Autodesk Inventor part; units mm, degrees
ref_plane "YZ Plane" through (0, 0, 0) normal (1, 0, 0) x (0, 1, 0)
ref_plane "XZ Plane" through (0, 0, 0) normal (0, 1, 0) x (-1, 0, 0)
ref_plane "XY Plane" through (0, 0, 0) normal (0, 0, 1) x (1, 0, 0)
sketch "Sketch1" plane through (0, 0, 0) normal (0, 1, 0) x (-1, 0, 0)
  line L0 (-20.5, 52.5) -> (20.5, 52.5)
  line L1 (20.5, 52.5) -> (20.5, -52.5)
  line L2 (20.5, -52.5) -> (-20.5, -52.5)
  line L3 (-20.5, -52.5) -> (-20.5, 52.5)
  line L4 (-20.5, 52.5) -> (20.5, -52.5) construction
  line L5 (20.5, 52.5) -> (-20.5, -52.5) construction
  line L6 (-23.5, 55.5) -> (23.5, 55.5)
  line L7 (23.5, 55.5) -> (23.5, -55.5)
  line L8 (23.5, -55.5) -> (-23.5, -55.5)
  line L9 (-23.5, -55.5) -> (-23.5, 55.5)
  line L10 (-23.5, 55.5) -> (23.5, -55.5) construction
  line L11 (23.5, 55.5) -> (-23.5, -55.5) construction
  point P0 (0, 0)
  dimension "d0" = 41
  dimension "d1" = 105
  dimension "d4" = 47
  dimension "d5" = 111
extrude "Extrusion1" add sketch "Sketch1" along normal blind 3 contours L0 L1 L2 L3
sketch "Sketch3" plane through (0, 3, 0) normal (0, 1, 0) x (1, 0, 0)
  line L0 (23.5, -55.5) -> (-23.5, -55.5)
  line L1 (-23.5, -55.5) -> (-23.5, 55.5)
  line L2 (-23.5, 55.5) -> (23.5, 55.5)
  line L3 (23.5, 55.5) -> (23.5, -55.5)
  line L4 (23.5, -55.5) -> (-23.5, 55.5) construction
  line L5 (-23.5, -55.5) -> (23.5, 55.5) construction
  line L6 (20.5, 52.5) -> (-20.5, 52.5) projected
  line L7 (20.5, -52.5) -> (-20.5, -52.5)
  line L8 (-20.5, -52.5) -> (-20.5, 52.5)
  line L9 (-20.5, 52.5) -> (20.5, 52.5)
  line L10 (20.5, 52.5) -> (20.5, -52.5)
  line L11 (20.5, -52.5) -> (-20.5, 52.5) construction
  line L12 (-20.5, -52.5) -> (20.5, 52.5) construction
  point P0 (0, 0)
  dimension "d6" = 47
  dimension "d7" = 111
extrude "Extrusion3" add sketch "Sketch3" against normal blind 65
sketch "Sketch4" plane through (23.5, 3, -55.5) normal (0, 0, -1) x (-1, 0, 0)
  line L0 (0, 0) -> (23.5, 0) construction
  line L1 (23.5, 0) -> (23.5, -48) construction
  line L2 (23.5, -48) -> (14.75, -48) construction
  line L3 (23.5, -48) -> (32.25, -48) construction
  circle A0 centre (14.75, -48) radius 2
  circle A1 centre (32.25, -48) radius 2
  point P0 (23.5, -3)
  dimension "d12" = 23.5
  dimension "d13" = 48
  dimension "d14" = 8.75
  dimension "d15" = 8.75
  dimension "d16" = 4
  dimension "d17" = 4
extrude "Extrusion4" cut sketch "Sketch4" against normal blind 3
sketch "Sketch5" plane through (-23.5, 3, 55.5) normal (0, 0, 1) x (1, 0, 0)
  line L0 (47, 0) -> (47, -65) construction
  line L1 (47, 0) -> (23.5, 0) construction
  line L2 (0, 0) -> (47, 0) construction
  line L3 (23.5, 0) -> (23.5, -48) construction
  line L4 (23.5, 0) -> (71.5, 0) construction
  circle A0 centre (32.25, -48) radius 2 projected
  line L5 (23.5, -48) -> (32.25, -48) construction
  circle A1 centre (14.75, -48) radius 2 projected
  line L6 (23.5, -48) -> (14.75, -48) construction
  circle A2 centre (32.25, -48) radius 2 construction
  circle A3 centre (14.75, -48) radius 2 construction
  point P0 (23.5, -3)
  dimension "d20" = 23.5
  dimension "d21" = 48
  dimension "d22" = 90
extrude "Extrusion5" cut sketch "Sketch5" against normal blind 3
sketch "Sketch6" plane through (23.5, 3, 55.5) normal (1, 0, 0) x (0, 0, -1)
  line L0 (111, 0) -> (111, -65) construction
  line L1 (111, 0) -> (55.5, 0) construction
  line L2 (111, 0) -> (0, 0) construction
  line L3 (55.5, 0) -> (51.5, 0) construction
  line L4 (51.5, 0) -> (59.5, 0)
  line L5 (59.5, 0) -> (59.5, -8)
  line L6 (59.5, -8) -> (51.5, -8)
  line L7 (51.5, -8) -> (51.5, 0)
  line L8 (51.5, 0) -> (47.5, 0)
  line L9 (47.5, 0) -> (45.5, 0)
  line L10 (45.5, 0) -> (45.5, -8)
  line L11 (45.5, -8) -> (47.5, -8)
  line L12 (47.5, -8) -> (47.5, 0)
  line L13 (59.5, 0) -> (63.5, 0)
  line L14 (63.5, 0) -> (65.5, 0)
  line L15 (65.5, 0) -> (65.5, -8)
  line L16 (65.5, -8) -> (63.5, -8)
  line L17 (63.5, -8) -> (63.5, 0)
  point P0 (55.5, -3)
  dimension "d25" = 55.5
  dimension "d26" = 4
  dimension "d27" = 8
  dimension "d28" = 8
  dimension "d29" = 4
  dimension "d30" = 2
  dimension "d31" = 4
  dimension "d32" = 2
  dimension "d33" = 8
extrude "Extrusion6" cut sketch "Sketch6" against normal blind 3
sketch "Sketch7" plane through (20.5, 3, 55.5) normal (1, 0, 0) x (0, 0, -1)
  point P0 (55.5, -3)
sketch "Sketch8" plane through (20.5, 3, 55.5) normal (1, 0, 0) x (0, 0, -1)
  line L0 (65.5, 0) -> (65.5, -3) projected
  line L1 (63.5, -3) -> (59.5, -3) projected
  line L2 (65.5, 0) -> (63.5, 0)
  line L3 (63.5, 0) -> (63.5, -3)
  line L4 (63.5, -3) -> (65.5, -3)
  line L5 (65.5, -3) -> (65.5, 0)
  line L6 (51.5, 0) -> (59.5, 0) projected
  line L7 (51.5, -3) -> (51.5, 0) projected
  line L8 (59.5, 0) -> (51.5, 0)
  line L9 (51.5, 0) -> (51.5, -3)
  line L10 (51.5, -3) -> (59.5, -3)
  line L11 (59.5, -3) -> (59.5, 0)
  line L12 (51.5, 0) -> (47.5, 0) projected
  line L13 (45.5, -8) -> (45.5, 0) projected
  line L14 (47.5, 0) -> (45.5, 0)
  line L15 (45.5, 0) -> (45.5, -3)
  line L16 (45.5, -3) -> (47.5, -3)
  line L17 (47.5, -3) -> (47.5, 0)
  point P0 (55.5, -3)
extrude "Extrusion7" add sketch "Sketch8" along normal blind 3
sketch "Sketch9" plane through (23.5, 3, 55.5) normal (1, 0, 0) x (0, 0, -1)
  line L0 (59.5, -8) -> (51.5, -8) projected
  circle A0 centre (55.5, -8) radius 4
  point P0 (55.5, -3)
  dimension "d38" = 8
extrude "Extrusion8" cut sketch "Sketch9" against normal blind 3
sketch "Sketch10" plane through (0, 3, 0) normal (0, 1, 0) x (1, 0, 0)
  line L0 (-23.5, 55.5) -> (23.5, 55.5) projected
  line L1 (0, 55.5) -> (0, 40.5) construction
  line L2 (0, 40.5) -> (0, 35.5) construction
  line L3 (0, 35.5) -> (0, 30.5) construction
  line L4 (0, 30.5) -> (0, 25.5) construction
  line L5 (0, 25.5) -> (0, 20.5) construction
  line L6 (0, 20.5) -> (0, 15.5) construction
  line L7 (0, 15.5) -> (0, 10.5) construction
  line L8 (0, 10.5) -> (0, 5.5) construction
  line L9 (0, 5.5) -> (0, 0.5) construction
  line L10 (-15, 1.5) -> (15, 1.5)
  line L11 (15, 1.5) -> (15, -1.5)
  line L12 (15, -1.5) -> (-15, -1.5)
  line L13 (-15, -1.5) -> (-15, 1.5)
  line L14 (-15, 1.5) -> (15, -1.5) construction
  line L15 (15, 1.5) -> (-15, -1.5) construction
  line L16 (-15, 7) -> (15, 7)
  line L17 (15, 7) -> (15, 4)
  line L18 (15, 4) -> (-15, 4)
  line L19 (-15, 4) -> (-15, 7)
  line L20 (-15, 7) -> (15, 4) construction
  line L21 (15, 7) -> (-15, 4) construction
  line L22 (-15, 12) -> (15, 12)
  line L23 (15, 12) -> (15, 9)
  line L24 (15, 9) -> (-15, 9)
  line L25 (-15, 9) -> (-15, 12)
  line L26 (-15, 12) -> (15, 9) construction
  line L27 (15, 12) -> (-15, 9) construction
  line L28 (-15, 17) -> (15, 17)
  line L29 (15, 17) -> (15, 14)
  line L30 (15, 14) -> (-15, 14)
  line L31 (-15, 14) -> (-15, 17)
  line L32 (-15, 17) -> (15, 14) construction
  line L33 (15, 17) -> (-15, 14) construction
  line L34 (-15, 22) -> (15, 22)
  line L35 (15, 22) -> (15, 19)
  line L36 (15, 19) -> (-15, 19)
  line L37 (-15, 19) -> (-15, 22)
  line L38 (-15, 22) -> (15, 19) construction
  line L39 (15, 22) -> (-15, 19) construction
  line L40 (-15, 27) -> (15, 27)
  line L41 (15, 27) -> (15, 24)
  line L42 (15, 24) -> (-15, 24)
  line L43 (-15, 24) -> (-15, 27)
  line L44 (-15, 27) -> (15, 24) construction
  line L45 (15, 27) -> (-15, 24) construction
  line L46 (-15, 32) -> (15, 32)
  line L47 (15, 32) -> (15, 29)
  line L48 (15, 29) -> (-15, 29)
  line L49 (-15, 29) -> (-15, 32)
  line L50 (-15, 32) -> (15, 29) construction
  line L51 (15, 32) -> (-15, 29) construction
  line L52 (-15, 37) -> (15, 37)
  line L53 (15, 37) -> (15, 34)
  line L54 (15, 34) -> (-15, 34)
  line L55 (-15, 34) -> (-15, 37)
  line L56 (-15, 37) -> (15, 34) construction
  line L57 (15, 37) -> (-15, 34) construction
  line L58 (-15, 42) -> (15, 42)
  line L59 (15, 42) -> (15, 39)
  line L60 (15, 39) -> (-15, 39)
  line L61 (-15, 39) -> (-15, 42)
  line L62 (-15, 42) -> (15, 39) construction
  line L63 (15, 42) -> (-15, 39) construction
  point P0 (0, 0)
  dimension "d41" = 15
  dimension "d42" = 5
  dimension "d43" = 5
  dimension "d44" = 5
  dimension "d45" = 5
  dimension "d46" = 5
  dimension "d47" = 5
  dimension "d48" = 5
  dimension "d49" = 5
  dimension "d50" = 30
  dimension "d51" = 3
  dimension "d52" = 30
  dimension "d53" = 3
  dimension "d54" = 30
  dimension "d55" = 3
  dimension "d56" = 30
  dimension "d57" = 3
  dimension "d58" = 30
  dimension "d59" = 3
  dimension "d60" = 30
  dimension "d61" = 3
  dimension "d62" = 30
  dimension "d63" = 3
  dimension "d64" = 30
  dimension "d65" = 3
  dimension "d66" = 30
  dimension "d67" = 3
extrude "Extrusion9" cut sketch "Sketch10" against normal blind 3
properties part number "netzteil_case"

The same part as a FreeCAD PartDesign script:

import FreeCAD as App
import Part
import Sketcher
from FreeCAD import Vector
Q = App.Units.Quantity


def add_polygon(sketch, points):
    """Adds a closed chain of lines whose ends are joined by coincident constraints."""
    first, n = sketch.GeometryCount, len(points)
    for a, b in zip(points, points[1:] + points[:1]):
        sketch.addGeometry(Part.LineSegment(App.Vector(*a, 0), App.Vector(*b, 0)), False)
    for i in range(n):
        sketch.addConstraint(Sketcher.Constraint("Coincident", first + i, 2, first + (i + 1) % n, 1))

doc = App.newDocument("Part")
body = doc.addObject("PartDesign::Body", "Body")

# Sketch on XZ plane
sketch1 = body.newObject("Sketcher::SketchObject", "Sketch")
sketch1.AttachmentSupport = (doc.getObject("XZ_Plane"), [""])
sketch1.MapMode = "FlatFace"
add_polygon(sketch1, [(-20, 52), (20, 52), (20, -52), (-20, -52)])  # lines 0-3
sketch1.addConstraint(Sketcher.Constraint("Horizontal", 0))
sketch1.addConstraint(Sketcher.Constraint("Vertical", 1))
sketch1.addConstraint(Sketcher.Constraint("Horizontal", 2))
sketch1.addConstraint(Sketcher.Constraint("Vertical", 3))
sketch1.addConstraint(Sketcher.Constraint("Symmetric", 0, 2, 2, 2, -1, 1))
sketch1.addConstraint(Sketcher.Constraint("DistanceX", 0, 1, 0, 2, Q("41 mm")))
sketch1.addConstraint(Sketcher.Constraint("DistanceY", 1, 2, 1, 1, Q("105 mm")))
pad1 = body.newObject("PartDesign::Pad", "Pad")
pad1.Profile = sketch1
pad1.Length = 3
pad1.Reversed = True

# Sketch on XZ plane
sketch2 = body.newObject("Sketcher::SketchObject", "Sketch001")
sketch2.AttachmentSupport = (doc.getObject("XZ_Plane"), [""])
sketch2.MapMode = "FlatFace"
sketch2.AttachmentOffset = App.Placement(Vector(0, 0, -3), App.Rotation())
add_polygon(sketch2, [(-24, 56), (24, 56), (24, -56), (-24, -56)])  # lines 0-3
add_polygon(sketch2, [(-20, -52), (20, -52), (20, 52), (-20, 52)])  # lines 4-7
sketch2.addConstraint(Sketcher.Constraint("Horizontal", 0))
sketch2.addConstraint(Sketcher.Constraint("Vertical", 1))
sketch2.addConstraint(Sketcher.Constraint("Horizontal", 2))
sketch2.addConstraint(Sketcher.Constraint("Vertical", 3))
sketch2.addConstraint(Sketcher.Constraint("Horizontal", 4))
sketch2.addConstraint(Sketcher.Constraint("Vertical", 5))
sketch2.addConstraint(Sketcher.Constraint("Horizontal", 6))
sketch2.addConstraint(Sketcher.Constraint("Vertical", 7))
sketch2.addConstraint(Sketcher.Constraint("Symmetric", 0, 2, 2, 2, -1, 1))
sketch2.addConstraint(Sketcher.Constraint("Symmetric", 4, 2, 6, 2, -1, 1))
sketch2.addConstraint(Sketcher.Constraint("DistanceX", 0, 1, 0, 2, Q("47 mm")))
sketch2.addConstraint(Sketcher.Constraint("DistanceY", 1, 2, 1, 1, Q("111 mm")))
sketch2.addConstraint(Sketcher.Constraint("DistanceX", 4, 1, 4, 2, Q("41 mm")))
sketch2.addConstraint(Sketcher.Constraint("DistanceY", 5, 1, 5, 2, Q("105 mm")))
pad2 = body.newObject("PartDesign::Pad", "Pad001")
pad2.Profile = sketch2
pad2.Length = 65

# Sketch on XY plane
sketch3 = body.newObject("Sketcher::SketchObject", "Sketch002")
sketch3.AttachmentSupport = (doc.getObject("XY_Plane"), [""])
sketch3.MapMode = "FlatFace"
sketch3.AttachmentOffset = App.Placement(Vector(0, 0, -55.5), App.Rotation())
sketch3.addGeometry(Part.Circle(Vector(8.8, -45, 0), Vector(0, 0, 1), 2), False)
sketch3.addGeometry(Part.Circle(Vector(-8.8, -45, 0), Vector(0, 0, 1), 2), False)
sketch3.addConstraint(Sketcher.Constraint("Equal", 0, 1))
sketch3.addConstraint(Sketcher.Constraint("Symmetric", 0, 3, 1, 3, -2))
sketch3.addConstraint(Sketcher.Constraint("Diameter", 0, Q("4 mm")))
sketch3.addConstraint(Sketcher.Constraint("DistanceX", -1, 1, 0, 3, Q("8.75 mm")))
sketch3.addConstraint(Sketcher.Constraint("DistanceY", 0, 3, -1, 1, Q("45 mm")))
pocket1 = body.newObject("PartDesign::Pocket", "Pocket")
pocket1.Profile = sketch3
pocket1.Length = 3
pocket1.Reversed = True

# Sketch on XY plane
sketch4 = body.newObject("Sketcher::SketchObject", "Sketch003")
sketch4.AttachmentSupport = (doc.getObject("XY_Plane"), [""])
sketch4.MapMode = "FlatFace"
sketch4.AttachmentOffset = App.Placement(Vector(0, 0, 55.5), App.Rotation())
sketch4.addGeometry(Part.Circle(Vector(8.8, -45, 0), Vector(0, 0, 1), 2), False)
sketch4.addGeometry(Part.Circle(Vector(-8.8, -45, 0), Vector(0, 0, 1), 2), False)
sketch4.addConstraint(Sketcher.Constraint("Equal", 0, 1))
sketch4.addConstraint(Sketcher.Constraint("Symmetric", 0, 3, 1, 3, -2))
sketch4.addConstraint(Sketcher.Constraint("Diameter", 0, Q("4 mm")))
sketch4.addConstraint(Sketcher.Constraint("DistanceY", 0, 3, -1, 1, Q("45 mm")))
sketch4.addConstraint(Sketcher.Constraint("DistanceX", 1, 3, 0, 3, Q("17.5 mm")))
pocket2 = body.newObject("PartDesign::Pocket", "Pocket001")
pocket2.Profile = sketch4
pocket2.Length = 3

# Sketch on YZ plane
sketch5 = body.newObject("Sketcher::SketchObject", "Sketch004")
sketch5.AttachmentSupport = (doc.getObject("YZ_Plane"), [""])
sketch5.MapMode = "FlatFace"
sketch5.AttachmentOffset = App.Placement(Vector(0, 0, 23.5), App.Rotation())
add_polygon(sketch5, [(3, -10), (3, -8), (-5, -8), (-5, -10)])  # lines 0-3
add_polygon(sketch5, [(3, -4), (3, 4), (-5, 4), (-5, -4)])  # lines 4-7
add_polygon(sketch5, [(-5, 8), (3, 8), (3, 10), (-5, 10)])  # lines 8-11
sketch5.addConstraint(Sketcher.Constraint("Vertical", 0))
sketch5.addConstraint(Sketcher.Constraint("Horizontal", 1))
sketch5.addConstraint(Sketcher.Constraint("Vertical", 2))
sketch5.addConstraint(Sketcher.Constraint("Horizontal", 3))
sketch5.addConstraint(Sketcher.Constraint("Vertical", 4))
sketch5.addConstraint(Sketcher.Constraint("Horizontal", 5))
sketch5.addConstraint(Sketcher.Constraint("Vertical", 6))
sketch5.addConstraint(Sketcher.Constraint("Horizontal", 7))
sketch5.addConstraint(Sketcher.Constraint("Horizontal", 8))
sketch5.addConstraint(Sketcher.Constraint("Vertical", 9))
sketch5.addConstraint(Sketcher.Constraint("Horizontal", 10))
sketch5.addConstraint(Sketcher.Constraint("Vertical", 11))
sketch5.addConstraint(Sketcher.Constraint("Symmetric", 0, 2, 8, 2, -1))
sketch5.addConstraint(Sketcher.Constraint("Symmetric", 2, 2, 10, 2, -1))
sketch5.addConstraint(Sketcher.Constraint("Vertical", 3, 2, 4, 2))
sketch5.addConstraint(Sketcher.Constraint("Vertical", 2, 2, 5, 2))
sketch5.addConstraint(Sketcher.Constraint("Equal", 10, 4))
sketch5.addConstraint(Sketcher.Constraint("DistanceX", 1, 2, 1, 1, Q("8 mm")))
sketch5.addConstraint(Sketcher.Constraint("DistanceY", 0, 1, 0, 2, Q("2 mm")))
sketch5.addConstraint(Sketcher.Constraint("DistanceY", 0, 2, -1, 1, Q("8 mm")))
sketch5.addConstraint(Sketcher.Constraint("DistanceY", -1, 1, 4, 2, Q("4 mm")))
sketch5.addConstraint(Sketcher.Constraint("DistanceX", -1, 1, 0, 2, Q("3 mm")))
pocket3 = body.newObject("PartDesign::Pocket", "Pocket002")
pocket3.Profile = sketch5
pocket3.Length = 3

# Sketch on YZ plane
sketch6 = body.newObject("Sketcher::SketchObject", "Sketch005")
sketch6.AttachmentSupport = (doc.getObject("YZ_Plane"), [""])
sketch6.MapMode = "FlatFace"
sketch6.AttachmentOffset = App.Placement(Vector(0, 0, 20.5), App.Rotation())
add_polygon(sketch6, [(0, 8), (3, 8), (3, 10), (0, 10)])  # lines 0-3
add_polygon(sketch6, [(0, 4), (0, -4), (3, -4), (3, 4)])  # lines 4-7
add_polygon(sketch6, [(0, -10), (3, -10), (3, -8), (0, -8)])  # lines 8-11
sketch6.addConstraint(Sketcher.Constraint("Horizontal", 0))
sketch6.addConstraint(Sketcher.Constraint("Vertical", 1))
sketch6.addConstraint(Sketcher.Constraint("Horizontal", 2))
sketch6.addConstraint(Sketcher.Constraint("Vertical", 3))
sketch6.addConstraint(Sketcher.Constraint("Vertical", 4))
sketch6.addConstraint(Sketcher.Constraint("Horizontal", 5))
sketch6.addConstraint(Sketcher.Constraint("Vertical", 6))
sketch6.addConstraint(Sketcher.Constraint("Horizontal", 7))
sketch6.addConstraint(Sketcher.Constraint("Horizontal", 8))
sketch6.addConstraint(Sketcher.Constraint("Vertical", 9))
sketch6.addConstraint(Sketcher.Constraint("Horizontal", 10))
sketch6.addConstraint(Sketcher.Constraint("Vertical", 11))
sketch6.addConstraint(Sketcher.Constraint("Symmetric", 4, 2, 7, 2, -1, 1))
sketch6.addConstraint(Sketcher.Constraint("Symmetric", 3, 2, 10, 2, -1, 1))
sketch6.addConstraint(Sketcher.Constraint("Symmetric", 1, 2, 8, 2, -1))
sketch6.addConstraint(Sketcher.Constraint("PointOnObject", 2, 2, -2))
sketch6.addConstraint(Sketcher.Constraint("Vertical", 1, 2, 5, 2))
sketch6.addConstraint(Sketcher.Constraint("DistanceX", 0, 1, 0, 2, Q("3 mm")))
sketch6.addConstraint(Sketcher.Constraint("DistanceY", 1, 1, 1, 2, Q("2 mm")))
sketch6.addConstraint(Sketcher.Constraint("DistanceY", 4, 2, 4, 1, Q("8 mm")))
sketch6.addConstraint(Sketcher.Constraint("DistanceY", -1, 1, 0, 2, Q("8 mm")))
pad3 = body.newObject("PartDesign::Pad", "Pad002")
pad3.Profile = sketch6
pad3.Length = 3

# Sketch on YZ plane
sketch7 = body.newObject("Sketcher::SketchObject", "Sketch006")
sketch7.AttachmentSupport = (doc.getObject("YZ_Plane"), [""])
sketch7.MapMode = "FlatFace"
sketch7.AttachmentOffset = App.Placement(Vector(0, 0, 23.5), App.Rotation())
sketch7.addGeometry(Part.Circle(Vector(-5, 0, 0), Vector(0, 0, 1), 4), False)
sketch7.addConstraint(Sketcher.Constraint("PointOnObject", 0, 3, -1))
sketch7.addConstraint(Sketcher.Constraint("Diameter", 0, Q("8 mm")))
sketch7.addConstraint(Sketcher.Constraint("DistanceX", 0, 3, -1, 1, Q("5 mm")))
pocket4 = body.newObject("PartDesign::Pocket", "Pocket003")
pocket4.Profile = sketch7
pocket4.Length = 3

# Sketch on XZ plane
sketch8 = body.newObject("Sketcher::SketchObject", "Sketch007")
sketch8.AttachmentSupport = (doc.getObject("XZ_Plane"), [""])
sketch8.MapMode = "FlatFace"
sketch8.AttachmentOffset = App.Placement(Vector(0, 0, -3), App.Rotation())
add_polygon(sketch8, [(15, -1.5), (-15, -1.5), (-15, 1.5), (15, 1.5)])  # lines 0-3
add_polygon(sketch8, [(15, -7), (-15, -7), (-15, -4), (15, -4)])  # lines 4-7
add_polygon(sketch8, [(15, -12), (-15, -12), (-15, -9), (15, -9)])  # lines 8-11
add_polygon(sketch8, [(15, -17), (-15, -17), (-15, -14), (15, -14)])  # lines 12-15
add_polygon(sketch8, [(15, -22), (-15, -22), (-15, -19), (15, -19)])  # lines 16-19
add_polygon(sketch8, [(15, -27), (-15, -27), (-15, -24), (15, -24)])  # lines 20-23
add_polygon(sketch8, [(15, -32), (-15, -32), (-15, -29), (15, -29)])  # lines 24-27
add_polygon(sketch8, [(15, -37), (-15, -37), (-15, -34), (15, -34)])  # lines 28-31
add_polygon(sketch8, [(15, -42), (-15, -42), (-15, -39), (15, -39)])  # lines 32-35
sketch8.addConstraint(Sketcher.Constraint("Horizontal", 0))
sketch8.addConstraint(Sketcher.Constraint("Vertical", 1))
sketch8.addConstraint(Sketcher.Constraint("Horizontal", 2))
sketch8.addConstraint(Sketcher.Constraint("Vertical", 3))
sketch8.addConstraint(Sketcher.Constraint("Horizontal", 4))
sketch8.addConstraint(Sketcher.Constraint("Vertical", 5))
sketch8.addConstraint(Sketcher.Constraint("Horizontal", 6))
sketch8.addConstraint(Sketcher.Constraint("Vertical", 7))
sketch8.addConstraint(Sketcher.Constraint("Horizontal", 8))
sketch8.addConstraint(Sketcher.Constraint("Vertical", 9))
sketch8.addConstraint(Sketcher.Constraint("Horizontal", 10))
sketch8.addConstraint(Sketcher.Constraint("Vertical", 11))
sketch8.addConstraint(Sketcher.Constraint("Horizontal", 12))
sketch8.addConstraint(Sketcher.Constraint("Vertical", 13))
sketch8.addConstraint(Sketcher.Constraint("Horizontal", 14))
sketch8.addConstraint(Sketcher.Constraint("Vertical", 15))
sketch8.addConstraint(Sketcher.Constraint("Horizontal", 16))
sketch8.addConstraint(Sketcher.Constraint("Vertical", 17))
sketch8.addConstraint(Sketcher.Constraint("Horizontal", 18))
sketch8.addConstraint(Sketcher.Constraint("Vertical", 19))
sketch8.addConstraint(Sketcher.Constraint("Horizontal", 20))
sketch8.addConstraint(Sketcher.Constraint("Vertical", 21))
sketch8.addConstraint(Sketcher.Constraint("Horizontal", 22))
sketch8.addConstraint(Sketcher.Constraint("Vertical", 23))
sketch8.addConstraint(Sketcher.Constraint("Horizontal", 24))
sketch8.addConstraint(Sketcher.Constraint("Vertical", 25))
sketch8.addConstraint(Sketcher.Constraint("Horizontal", 26))
sketch8.addConstraint(Sketcher.Constraint("Vertical", 27))
sketch8.addConstraint(Sketcher.Constraint("Horizontal", 28))
sketch8.addConstraint(Sketcher.Constraint("Vertical", 29))
sketch8.addConstraint(Sketcher.Constraint("Horizontal", 30))
sketch8.addConstraint(Sketcher.Constraint("Vertical", 31))
sketch8.addConstraint(Sketcher.Constraint("Horizontal", 32))
sketch8.addConstraint(Sketcher.Constraint("Vertical", 33))
sketch8.addConstraint(Sketcher.Constraint("Horizontal", 34))
sketch8.addConstraint(Sketcher.Constraint("Vertical", 35))
sketch8.addConstraint(Sketcher.Constraint("Symmetric", 0, 2, 2, 2, -1, 1))
sketch8.addConstraint(Sketcher.Constraint("Vertical", 1, 2, 4, 2))
sketch8.addConstraint(Sketcher.Constraint("Vertical", 3, 2, 6, 2))
sketch8.addConstraint(Sketcher.Constraint("Vertical", 5, 2, 8, 2))
sketch8.addConstraint(Sketcher.Constraint("Vertical", 7, 2, 10, 2))
sketch8.addConstraint(Sketcher.Constraint("Vertical", 9, 2, 12, 2))
sketch8.addConstraint(Sketcher.Constraint("Vertical", 11, 2, 14, 2))
sketch8.addConstraint(Sketcher.Constraint("Vertical", 13, 2, 16, 2))
sketch8.addConstraint(Sketcher.Constraint("Vertical", 15, 2, 18, 2))
sketch8.addConstraint(Sketcher.Constraint("Vertical", 17, 2, 20, 2))
sketch8.addConstraint(Sketcher.Constraint("Vertical", 19, 2, 22, 2))
sketch8.addConstraint(Sketcher.Constraint("Vertical", 21, 2, 24, 2))
sketch8.addConstraint(Sketcher.Constraint("Vertical", 23, 2, 26, 2))
sketch8.addConstraint(Sketcher.Constraint("Vertical", 25, 2, 28, 2))
sketch8.addConstraint(Sketcher.Constraint("Vertical", 27, 2, 30, 2))
sketch8.addConstraint(Sketcher.Constraint("Vertical", 29, 2, 32, 2))
sketch8.addConstraint(Sketcher.Constraint("Vertical", 31, 2, 34, 2))
sketch8.addConstraint(Sketcher.Constraint("Equal", 3, 5))
sketch8.addConstraint(Sketcher.Constraint("Equal", 7, 9))
sketch8.addConstraint(Sketcher.Constraint("Equal", 11, 13))
sketch8.addConstraint(Sketcher.Constraint("Equal", 15, 17))
sketch8.addConstraint(Sketcher.Constraint("Equal", 19, 21))
sketch8.addConstraint(Sketcher.Constraint("Equal", 23, 25))
sketch8.addConstraint(Sketcher.Constraint("Equal", 27, 29))
sketch8.addConstraint(Sketcher.Constraint("Equal", 31, 33))
sketch8.addConstraint(Sketcher.Constraint("DistanceX", 0, 2, 0, 1, Q("30 mm")))
sketch8.addConstraint(Sketcher.Constraint("DistanceY", 1, 1, 1, 2, Q("3 mm")))
sketch8.addConstraint(Sketcher.Constraint("DistanceY", 8, 2, 4, 2, Q("5 mm")))
sketch8.addConstraint(Sketcher.Constraint("DistanceY", 12, 2, 8, 2, Q("5 mm")))
sketch8.addConstraint(Sketcher.Constraint("DistanceY", 16, 2, 12, 2, Q("5 mm")))
sketch8.addConstraint(Sketcher.Constraint("DistanceY", 20, 2, 16, 2, Q("5 mm")))
sketch8.addConstraint(Sketcher.Constraint("DistanceY", 24, 2, 20, 2, Q("5 mm")))
sketch8.addConstraint(Sketcher.Constraint("DistanceY", 28, 2, 24, 2, Q("5 mm")))
sketch8.addConstraint(Sketcher.Constraint("DistanceY", 32, 2, 28, 2, Q("5 mm")))
sketch8.addConstraint(Sketcher.Constraint("DistanceY", 4, 2, -1, 1, Q("7 mm")))
pocket5 = body.newObject("PartDesign::Pocket", "Pocket004")
pocket5.Profile = sketch8
pocket5.Length = 3
pocket5.Reversed = True

doc.recompute()
